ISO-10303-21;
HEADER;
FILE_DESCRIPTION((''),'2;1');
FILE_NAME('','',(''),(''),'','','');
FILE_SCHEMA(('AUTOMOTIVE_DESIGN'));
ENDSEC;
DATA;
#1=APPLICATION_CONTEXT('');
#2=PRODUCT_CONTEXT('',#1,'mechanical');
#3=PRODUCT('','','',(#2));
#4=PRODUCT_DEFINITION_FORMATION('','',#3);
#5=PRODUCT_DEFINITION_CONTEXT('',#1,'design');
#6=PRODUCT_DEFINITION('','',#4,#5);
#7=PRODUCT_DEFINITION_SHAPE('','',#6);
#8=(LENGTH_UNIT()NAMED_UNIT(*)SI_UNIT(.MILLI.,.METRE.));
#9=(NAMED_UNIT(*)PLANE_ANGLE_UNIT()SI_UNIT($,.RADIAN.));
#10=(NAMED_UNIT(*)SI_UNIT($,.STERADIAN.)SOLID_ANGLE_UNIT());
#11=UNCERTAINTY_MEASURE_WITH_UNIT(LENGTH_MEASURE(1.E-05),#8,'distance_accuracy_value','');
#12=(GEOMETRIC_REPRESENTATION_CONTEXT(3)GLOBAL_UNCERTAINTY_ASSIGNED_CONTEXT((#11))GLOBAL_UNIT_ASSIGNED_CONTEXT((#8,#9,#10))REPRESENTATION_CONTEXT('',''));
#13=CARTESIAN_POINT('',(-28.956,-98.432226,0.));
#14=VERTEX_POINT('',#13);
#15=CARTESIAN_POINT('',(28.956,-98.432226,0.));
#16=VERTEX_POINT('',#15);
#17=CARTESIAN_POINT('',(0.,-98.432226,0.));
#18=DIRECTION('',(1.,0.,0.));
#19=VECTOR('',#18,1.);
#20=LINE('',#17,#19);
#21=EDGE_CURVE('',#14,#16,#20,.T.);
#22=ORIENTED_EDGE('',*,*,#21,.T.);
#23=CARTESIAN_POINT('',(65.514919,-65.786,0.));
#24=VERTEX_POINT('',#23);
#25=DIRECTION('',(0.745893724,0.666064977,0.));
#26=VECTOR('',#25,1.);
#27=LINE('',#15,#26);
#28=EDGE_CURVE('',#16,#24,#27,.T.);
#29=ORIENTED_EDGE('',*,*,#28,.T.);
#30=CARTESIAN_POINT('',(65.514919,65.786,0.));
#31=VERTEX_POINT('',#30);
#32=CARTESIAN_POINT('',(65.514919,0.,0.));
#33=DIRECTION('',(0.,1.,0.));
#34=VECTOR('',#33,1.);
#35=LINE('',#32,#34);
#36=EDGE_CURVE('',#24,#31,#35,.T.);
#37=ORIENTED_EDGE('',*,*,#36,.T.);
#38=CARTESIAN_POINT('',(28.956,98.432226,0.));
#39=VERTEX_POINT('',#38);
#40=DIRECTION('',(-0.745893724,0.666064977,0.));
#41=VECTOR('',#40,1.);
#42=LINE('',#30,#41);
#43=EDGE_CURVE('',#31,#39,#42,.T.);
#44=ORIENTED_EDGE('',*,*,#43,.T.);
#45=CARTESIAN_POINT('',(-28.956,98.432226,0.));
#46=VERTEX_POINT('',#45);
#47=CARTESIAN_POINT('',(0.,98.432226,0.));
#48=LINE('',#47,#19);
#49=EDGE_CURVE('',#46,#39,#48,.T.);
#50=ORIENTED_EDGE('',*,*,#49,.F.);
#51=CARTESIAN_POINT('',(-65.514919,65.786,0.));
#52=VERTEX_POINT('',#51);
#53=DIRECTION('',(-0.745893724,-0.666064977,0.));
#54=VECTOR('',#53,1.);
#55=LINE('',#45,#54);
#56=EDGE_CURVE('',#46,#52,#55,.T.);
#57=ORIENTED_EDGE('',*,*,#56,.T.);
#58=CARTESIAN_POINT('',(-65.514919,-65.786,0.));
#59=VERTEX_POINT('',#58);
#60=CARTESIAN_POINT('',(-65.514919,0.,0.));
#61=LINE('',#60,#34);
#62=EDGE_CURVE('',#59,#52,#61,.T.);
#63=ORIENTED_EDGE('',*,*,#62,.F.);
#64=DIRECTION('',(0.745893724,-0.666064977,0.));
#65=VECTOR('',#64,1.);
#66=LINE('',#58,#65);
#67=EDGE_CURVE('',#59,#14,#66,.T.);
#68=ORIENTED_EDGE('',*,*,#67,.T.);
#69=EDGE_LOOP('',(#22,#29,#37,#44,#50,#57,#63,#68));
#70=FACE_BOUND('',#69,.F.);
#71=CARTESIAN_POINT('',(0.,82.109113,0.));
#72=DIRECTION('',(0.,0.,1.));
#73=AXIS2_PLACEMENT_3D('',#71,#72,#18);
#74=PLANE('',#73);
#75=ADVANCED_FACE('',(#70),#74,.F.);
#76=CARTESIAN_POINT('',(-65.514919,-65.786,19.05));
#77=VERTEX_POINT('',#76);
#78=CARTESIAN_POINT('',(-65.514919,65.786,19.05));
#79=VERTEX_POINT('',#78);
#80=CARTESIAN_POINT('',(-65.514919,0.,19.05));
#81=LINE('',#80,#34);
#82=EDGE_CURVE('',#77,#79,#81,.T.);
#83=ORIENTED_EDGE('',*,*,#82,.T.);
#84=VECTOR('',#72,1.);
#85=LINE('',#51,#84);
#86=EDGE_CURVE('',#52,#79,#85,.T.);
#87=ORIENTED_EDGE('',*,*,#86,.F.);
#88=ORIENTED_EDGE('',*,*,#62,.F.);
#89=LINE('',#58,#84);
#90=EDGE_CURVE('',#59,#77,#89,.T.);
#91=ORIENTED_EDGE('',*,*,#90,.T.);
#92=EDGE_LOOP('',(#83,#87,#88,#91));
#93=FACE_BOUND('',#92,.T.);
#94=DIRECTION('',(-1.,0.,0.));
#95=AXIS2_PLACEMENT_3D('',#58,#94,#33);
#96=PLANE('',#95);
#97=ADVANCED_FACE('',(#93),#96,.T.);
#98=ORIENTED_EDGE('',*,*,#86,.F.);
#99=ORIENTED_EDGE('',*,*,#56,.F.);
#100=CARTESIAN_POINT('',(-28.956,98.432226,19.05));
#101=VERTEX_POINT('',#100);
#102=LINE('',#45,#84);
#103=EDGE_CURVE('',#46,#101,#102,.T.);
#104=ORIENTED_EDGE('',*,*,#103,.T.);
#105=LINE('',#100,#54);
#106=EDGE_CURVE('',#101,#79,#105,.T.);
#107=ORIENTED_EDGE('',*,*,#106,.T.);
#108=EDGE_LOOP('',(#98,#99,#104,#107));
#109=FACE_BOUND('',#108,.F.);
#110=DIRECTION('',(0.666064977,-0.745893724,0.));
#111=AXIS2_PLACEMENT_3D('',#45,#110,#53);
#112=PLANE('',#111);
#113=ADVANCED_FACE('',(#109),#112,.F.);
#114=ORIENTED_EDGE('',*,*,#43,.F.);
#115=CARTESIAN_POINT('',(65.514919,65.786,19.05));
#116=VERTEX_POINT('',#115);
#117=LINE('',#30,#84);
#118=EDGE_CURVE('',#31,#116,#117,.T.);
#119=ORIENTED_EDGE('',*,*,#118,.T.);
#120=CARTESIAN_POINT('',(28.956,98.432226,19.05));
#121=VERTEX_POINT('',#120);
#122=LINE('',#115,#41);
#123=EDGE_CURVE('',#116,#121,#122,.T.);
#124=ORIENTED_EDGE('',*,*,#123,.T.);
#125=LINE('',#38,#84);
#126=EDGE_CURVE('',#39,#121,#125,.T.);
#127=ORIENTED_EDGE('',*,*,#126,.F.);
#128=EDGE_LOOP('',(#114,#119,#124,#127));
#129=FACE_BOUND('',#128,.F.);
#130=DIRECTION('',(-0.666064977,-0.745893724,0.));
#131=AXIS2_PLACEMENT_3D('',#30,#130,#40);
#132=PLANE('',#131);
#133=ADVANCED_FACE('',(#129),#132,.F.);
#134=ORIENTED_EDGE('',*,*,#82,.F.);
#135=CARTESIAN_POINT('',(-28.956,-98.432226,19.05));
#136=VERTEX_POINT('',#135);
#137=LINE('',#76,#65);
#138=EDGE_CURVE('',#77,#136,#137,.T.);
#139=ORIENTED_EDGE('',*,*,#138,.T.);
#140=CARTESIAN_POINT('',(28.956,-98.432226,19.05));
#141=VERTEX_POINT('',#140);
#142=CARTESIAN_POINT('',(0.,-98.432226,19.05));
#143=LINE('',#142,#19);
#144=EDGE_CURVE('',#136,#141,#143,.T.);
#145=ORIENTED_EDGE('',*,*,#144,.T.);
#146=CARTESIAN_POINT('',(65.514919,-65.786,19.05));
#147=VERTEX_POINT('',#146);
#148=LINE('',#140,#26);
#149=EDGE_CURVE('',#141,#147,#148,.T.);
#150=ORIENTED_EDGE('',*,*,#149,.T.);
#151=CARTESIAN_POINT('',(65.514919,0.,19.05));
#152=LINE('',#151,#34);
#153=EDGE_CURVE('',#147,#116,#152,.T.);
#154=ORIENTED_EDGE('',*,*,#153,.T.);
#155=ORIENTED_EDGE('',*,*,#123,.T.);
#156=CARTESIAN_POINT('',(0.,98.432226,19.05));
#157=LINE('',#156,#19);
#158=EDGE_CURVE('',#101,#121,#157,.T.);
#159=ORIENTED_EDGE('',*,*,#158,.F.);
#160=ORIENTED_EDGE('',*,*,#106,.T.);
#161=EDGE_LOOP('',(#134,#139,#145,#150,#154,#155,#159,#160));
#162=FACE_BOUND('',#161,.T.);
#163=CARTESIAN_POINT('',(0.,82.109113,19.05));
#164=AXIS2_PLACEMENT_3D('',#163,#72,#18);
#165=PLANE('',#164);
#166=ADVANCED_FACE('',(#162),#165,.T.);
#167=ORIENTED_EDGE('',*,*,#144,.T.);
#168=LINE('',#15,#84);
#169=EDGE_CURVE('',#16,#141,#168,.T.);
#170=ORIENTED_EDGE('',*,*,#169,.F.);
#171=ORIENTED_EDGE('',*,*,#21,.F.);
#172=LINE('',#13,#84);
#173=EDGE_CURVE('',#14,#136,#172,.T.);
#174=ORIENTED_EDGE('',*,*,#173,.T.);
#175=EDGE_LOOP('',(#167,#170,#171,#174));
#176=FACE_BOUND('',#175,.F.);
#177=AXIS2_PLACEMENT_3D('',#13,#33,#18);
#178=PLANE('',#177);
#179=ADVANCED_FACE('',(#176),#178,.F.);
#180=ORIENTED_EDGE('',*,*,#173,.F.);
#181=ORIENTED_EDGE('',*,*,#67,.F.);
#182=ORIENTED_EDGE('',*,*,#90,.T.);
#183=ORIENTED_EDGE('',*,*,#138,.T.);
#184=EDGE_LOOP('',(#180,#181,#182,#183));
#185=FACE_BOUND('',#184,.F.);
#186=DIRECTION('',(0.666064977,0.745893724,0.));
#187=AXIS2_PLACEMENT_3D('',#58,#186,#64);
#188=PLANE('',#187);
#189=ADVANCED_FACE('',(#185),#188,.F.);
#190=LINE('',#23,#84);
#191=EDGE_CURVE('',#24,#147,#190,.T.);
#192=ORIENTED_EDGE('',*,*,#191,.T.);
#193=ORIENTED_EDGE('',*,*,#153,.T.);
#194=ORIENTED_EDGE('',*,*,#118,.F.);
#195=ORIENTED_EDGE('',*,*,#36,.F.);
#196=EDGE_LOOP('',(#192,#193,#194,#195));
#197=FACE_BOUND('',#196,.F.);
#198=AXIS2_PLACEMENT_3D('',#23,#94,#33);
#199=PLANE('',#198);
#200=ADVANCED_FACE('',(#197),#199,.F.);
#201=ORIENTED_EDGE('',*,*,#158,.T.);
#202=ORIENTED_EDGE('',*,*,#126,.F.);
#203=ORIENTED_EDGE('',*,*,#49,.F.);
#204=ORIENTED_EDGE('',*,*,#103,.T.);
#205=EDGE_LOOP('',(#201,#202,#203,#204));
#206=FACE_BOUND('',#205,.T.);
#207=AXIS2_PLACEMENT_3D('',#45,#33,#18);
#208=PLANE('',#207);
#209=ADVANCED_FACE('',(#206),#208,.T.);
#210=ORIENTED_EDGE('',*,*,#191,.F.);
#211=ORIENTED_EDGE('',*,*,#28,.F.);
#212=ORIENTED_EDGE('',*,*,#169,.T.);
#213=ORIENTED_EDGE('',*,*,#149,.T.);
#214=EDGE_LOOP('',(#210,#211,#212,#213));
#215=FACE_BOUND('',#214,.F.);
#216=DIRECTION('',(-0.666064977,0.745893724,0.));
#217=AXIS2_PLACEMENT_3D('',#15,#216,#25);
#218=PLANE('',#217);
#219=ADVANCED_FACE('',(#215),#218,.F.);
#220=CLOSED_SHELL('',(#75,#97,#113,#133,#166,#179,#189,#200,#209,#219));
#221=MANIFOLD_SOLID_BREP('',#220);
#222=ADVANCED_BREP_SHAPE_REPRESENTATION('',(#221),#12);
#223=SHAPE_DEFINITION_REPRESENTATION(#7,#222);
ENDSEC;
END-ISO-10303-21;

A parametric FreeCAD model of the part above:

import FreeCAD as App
import Part
import Sketcher

V = App.Vector
Q = App.Units.Quantity

doc = App.newDocument("Part")
params = doc.addObject("Spreadsheet::Sheet", "Params")
for row, (alias, value) in enumerate([
    ("sketch1_width", "2.28 in"),
    ("sketch1_height", "5.18 in"),
    ("pad1_length", "0.75 in"),
], start=1):
    params.set(f"A{row}", alias)
    params.set(f"B{row}", "=" + value)
    params.setAlias(f"B{row}", alias)

body = doc.addObject("PartDesign::Body", "Body")

sketch1 = body.newObject("Sketcher::SketchObject", "Sketch")
sketch1.AttachmentSupport = (doc.getObject("XY_Plane"), [""])
sketch1.MapMode = "FlatFace"
sketch1.addGeometry(Part.LineSegment(V(29, 98, 0), V(-29, 98, 0)), False)
sketch1.addGeometry(Part.LineSegment(V(-29, 98, 0), V(-66, 66, 0)), False)
sketch1.addGeometry(Part.LineSegment(V(-66, 66, 0), V(-66, -66, 0)), False)
sketch1.addGeometry(Part.LineSegment(V(-66, -66, 0), V(-29, -98, 0)), False)
sketch1.addGeometry(Part.LineSegment(V(-29, -98, 0), V(29, -98, 0)), False)
sketch1.addGeometry(Part.LineSegment(V(29, -98, 0), V(66, -66, 0)), False)
sketch1.addGeometry(Part.LineSegment(V(66, -66, 0), V(66, 66, 0)), False)
sketch1.addGeometry(Part.LineSegment(V(66, 66, 0), V(29, 98, 0)), False)
sketch1.addConstraint(Sketcher.Constraint("Coincident", 0, 2, 1, 1))
sketch1.addConstraint(Sketcher.Constraint("Coincident", 1, 2, 2, 1))
sketch1.addConstraint(Sketcher.Constraint("Coincident", 2, 2, 3, 1))
sketch1.addConstraint(Sketcher.Constraint("Coincident", 3, 2, 4, 1))
sketch1.addConstraint(Sketcher.Constraint("Coincident", 4, 2, 5, 1))
sketch1.addConstraint(Sketcher.Constraint("Coincident", 5, 2, 6, 1))
sketch1.addConstraint(Sketcher.Constraint("Coincident", 6, 2, 7, 1))
sketch1.addConstraint(Sketcher.Constraint("Coincident", 7, 2, 0, 1))
sketch1.addConstraint(Sketcher.Constraint("Horizontal", 0))
sketch1.addConstraint(Sketcher.Constraint("Vertical", 2))
sketch1.addConstraint(Sketcher.Constraint("Horizontal", 4))
sketch1.addConstraint(Sketcher.Constraint("Vertical", 6))
sketch1.addConstraint(Sketcher.Constraint("Symmetric", 0, 2, 4, 2, -1, 1))
sketch1.addConstraint(Sketcher.Constraint("Symmetric", 1, 2, 5, 2, -1, 1))
sketch1.addConstraint(Sketcher.Constraint("Parallel", 3, 7))
sketch1.addConstraint(Sketcher.Constraint("Horizontal", 2, 2, 5, 2))
sketch1.addConstraint(Sketcher.Constraint("Horizontal", 1, 2, 6, 2))
sketch1.addConstraint(Sketcher.Constraint("Vertical", 0, 2, 3, 2))
sketch1.addConstraint(Sketcher.Constraint("DistanceX", 0, 2, 0, 1, Q("2.28 in")))
sketch1.addConstraint(Sketcher.Constraint("DistanceY", 2, 2, 2, 1, Q("5.18 in")))
sketch1.addConstraint(Sketcher.Constraint("DistanceX", 1, 2, -1, 1, Q("65.514919 mm")))
sketch1.addConstraint(Sketcher.Constraint("Distance", 1, Q("49.013576 mm")))
sketch1.setExpression("Constraints[18]", "Params.sketch1_width")
sketch1.setExpression("Constraints[19]", "Params.sketch1_height")
pad1 = body.newObject("PartDesign::Pad", "Pad")
pad1.Profile = sketch1
pad1.setExpression("Length", "Params.pad1_length")

doc.recompute()
